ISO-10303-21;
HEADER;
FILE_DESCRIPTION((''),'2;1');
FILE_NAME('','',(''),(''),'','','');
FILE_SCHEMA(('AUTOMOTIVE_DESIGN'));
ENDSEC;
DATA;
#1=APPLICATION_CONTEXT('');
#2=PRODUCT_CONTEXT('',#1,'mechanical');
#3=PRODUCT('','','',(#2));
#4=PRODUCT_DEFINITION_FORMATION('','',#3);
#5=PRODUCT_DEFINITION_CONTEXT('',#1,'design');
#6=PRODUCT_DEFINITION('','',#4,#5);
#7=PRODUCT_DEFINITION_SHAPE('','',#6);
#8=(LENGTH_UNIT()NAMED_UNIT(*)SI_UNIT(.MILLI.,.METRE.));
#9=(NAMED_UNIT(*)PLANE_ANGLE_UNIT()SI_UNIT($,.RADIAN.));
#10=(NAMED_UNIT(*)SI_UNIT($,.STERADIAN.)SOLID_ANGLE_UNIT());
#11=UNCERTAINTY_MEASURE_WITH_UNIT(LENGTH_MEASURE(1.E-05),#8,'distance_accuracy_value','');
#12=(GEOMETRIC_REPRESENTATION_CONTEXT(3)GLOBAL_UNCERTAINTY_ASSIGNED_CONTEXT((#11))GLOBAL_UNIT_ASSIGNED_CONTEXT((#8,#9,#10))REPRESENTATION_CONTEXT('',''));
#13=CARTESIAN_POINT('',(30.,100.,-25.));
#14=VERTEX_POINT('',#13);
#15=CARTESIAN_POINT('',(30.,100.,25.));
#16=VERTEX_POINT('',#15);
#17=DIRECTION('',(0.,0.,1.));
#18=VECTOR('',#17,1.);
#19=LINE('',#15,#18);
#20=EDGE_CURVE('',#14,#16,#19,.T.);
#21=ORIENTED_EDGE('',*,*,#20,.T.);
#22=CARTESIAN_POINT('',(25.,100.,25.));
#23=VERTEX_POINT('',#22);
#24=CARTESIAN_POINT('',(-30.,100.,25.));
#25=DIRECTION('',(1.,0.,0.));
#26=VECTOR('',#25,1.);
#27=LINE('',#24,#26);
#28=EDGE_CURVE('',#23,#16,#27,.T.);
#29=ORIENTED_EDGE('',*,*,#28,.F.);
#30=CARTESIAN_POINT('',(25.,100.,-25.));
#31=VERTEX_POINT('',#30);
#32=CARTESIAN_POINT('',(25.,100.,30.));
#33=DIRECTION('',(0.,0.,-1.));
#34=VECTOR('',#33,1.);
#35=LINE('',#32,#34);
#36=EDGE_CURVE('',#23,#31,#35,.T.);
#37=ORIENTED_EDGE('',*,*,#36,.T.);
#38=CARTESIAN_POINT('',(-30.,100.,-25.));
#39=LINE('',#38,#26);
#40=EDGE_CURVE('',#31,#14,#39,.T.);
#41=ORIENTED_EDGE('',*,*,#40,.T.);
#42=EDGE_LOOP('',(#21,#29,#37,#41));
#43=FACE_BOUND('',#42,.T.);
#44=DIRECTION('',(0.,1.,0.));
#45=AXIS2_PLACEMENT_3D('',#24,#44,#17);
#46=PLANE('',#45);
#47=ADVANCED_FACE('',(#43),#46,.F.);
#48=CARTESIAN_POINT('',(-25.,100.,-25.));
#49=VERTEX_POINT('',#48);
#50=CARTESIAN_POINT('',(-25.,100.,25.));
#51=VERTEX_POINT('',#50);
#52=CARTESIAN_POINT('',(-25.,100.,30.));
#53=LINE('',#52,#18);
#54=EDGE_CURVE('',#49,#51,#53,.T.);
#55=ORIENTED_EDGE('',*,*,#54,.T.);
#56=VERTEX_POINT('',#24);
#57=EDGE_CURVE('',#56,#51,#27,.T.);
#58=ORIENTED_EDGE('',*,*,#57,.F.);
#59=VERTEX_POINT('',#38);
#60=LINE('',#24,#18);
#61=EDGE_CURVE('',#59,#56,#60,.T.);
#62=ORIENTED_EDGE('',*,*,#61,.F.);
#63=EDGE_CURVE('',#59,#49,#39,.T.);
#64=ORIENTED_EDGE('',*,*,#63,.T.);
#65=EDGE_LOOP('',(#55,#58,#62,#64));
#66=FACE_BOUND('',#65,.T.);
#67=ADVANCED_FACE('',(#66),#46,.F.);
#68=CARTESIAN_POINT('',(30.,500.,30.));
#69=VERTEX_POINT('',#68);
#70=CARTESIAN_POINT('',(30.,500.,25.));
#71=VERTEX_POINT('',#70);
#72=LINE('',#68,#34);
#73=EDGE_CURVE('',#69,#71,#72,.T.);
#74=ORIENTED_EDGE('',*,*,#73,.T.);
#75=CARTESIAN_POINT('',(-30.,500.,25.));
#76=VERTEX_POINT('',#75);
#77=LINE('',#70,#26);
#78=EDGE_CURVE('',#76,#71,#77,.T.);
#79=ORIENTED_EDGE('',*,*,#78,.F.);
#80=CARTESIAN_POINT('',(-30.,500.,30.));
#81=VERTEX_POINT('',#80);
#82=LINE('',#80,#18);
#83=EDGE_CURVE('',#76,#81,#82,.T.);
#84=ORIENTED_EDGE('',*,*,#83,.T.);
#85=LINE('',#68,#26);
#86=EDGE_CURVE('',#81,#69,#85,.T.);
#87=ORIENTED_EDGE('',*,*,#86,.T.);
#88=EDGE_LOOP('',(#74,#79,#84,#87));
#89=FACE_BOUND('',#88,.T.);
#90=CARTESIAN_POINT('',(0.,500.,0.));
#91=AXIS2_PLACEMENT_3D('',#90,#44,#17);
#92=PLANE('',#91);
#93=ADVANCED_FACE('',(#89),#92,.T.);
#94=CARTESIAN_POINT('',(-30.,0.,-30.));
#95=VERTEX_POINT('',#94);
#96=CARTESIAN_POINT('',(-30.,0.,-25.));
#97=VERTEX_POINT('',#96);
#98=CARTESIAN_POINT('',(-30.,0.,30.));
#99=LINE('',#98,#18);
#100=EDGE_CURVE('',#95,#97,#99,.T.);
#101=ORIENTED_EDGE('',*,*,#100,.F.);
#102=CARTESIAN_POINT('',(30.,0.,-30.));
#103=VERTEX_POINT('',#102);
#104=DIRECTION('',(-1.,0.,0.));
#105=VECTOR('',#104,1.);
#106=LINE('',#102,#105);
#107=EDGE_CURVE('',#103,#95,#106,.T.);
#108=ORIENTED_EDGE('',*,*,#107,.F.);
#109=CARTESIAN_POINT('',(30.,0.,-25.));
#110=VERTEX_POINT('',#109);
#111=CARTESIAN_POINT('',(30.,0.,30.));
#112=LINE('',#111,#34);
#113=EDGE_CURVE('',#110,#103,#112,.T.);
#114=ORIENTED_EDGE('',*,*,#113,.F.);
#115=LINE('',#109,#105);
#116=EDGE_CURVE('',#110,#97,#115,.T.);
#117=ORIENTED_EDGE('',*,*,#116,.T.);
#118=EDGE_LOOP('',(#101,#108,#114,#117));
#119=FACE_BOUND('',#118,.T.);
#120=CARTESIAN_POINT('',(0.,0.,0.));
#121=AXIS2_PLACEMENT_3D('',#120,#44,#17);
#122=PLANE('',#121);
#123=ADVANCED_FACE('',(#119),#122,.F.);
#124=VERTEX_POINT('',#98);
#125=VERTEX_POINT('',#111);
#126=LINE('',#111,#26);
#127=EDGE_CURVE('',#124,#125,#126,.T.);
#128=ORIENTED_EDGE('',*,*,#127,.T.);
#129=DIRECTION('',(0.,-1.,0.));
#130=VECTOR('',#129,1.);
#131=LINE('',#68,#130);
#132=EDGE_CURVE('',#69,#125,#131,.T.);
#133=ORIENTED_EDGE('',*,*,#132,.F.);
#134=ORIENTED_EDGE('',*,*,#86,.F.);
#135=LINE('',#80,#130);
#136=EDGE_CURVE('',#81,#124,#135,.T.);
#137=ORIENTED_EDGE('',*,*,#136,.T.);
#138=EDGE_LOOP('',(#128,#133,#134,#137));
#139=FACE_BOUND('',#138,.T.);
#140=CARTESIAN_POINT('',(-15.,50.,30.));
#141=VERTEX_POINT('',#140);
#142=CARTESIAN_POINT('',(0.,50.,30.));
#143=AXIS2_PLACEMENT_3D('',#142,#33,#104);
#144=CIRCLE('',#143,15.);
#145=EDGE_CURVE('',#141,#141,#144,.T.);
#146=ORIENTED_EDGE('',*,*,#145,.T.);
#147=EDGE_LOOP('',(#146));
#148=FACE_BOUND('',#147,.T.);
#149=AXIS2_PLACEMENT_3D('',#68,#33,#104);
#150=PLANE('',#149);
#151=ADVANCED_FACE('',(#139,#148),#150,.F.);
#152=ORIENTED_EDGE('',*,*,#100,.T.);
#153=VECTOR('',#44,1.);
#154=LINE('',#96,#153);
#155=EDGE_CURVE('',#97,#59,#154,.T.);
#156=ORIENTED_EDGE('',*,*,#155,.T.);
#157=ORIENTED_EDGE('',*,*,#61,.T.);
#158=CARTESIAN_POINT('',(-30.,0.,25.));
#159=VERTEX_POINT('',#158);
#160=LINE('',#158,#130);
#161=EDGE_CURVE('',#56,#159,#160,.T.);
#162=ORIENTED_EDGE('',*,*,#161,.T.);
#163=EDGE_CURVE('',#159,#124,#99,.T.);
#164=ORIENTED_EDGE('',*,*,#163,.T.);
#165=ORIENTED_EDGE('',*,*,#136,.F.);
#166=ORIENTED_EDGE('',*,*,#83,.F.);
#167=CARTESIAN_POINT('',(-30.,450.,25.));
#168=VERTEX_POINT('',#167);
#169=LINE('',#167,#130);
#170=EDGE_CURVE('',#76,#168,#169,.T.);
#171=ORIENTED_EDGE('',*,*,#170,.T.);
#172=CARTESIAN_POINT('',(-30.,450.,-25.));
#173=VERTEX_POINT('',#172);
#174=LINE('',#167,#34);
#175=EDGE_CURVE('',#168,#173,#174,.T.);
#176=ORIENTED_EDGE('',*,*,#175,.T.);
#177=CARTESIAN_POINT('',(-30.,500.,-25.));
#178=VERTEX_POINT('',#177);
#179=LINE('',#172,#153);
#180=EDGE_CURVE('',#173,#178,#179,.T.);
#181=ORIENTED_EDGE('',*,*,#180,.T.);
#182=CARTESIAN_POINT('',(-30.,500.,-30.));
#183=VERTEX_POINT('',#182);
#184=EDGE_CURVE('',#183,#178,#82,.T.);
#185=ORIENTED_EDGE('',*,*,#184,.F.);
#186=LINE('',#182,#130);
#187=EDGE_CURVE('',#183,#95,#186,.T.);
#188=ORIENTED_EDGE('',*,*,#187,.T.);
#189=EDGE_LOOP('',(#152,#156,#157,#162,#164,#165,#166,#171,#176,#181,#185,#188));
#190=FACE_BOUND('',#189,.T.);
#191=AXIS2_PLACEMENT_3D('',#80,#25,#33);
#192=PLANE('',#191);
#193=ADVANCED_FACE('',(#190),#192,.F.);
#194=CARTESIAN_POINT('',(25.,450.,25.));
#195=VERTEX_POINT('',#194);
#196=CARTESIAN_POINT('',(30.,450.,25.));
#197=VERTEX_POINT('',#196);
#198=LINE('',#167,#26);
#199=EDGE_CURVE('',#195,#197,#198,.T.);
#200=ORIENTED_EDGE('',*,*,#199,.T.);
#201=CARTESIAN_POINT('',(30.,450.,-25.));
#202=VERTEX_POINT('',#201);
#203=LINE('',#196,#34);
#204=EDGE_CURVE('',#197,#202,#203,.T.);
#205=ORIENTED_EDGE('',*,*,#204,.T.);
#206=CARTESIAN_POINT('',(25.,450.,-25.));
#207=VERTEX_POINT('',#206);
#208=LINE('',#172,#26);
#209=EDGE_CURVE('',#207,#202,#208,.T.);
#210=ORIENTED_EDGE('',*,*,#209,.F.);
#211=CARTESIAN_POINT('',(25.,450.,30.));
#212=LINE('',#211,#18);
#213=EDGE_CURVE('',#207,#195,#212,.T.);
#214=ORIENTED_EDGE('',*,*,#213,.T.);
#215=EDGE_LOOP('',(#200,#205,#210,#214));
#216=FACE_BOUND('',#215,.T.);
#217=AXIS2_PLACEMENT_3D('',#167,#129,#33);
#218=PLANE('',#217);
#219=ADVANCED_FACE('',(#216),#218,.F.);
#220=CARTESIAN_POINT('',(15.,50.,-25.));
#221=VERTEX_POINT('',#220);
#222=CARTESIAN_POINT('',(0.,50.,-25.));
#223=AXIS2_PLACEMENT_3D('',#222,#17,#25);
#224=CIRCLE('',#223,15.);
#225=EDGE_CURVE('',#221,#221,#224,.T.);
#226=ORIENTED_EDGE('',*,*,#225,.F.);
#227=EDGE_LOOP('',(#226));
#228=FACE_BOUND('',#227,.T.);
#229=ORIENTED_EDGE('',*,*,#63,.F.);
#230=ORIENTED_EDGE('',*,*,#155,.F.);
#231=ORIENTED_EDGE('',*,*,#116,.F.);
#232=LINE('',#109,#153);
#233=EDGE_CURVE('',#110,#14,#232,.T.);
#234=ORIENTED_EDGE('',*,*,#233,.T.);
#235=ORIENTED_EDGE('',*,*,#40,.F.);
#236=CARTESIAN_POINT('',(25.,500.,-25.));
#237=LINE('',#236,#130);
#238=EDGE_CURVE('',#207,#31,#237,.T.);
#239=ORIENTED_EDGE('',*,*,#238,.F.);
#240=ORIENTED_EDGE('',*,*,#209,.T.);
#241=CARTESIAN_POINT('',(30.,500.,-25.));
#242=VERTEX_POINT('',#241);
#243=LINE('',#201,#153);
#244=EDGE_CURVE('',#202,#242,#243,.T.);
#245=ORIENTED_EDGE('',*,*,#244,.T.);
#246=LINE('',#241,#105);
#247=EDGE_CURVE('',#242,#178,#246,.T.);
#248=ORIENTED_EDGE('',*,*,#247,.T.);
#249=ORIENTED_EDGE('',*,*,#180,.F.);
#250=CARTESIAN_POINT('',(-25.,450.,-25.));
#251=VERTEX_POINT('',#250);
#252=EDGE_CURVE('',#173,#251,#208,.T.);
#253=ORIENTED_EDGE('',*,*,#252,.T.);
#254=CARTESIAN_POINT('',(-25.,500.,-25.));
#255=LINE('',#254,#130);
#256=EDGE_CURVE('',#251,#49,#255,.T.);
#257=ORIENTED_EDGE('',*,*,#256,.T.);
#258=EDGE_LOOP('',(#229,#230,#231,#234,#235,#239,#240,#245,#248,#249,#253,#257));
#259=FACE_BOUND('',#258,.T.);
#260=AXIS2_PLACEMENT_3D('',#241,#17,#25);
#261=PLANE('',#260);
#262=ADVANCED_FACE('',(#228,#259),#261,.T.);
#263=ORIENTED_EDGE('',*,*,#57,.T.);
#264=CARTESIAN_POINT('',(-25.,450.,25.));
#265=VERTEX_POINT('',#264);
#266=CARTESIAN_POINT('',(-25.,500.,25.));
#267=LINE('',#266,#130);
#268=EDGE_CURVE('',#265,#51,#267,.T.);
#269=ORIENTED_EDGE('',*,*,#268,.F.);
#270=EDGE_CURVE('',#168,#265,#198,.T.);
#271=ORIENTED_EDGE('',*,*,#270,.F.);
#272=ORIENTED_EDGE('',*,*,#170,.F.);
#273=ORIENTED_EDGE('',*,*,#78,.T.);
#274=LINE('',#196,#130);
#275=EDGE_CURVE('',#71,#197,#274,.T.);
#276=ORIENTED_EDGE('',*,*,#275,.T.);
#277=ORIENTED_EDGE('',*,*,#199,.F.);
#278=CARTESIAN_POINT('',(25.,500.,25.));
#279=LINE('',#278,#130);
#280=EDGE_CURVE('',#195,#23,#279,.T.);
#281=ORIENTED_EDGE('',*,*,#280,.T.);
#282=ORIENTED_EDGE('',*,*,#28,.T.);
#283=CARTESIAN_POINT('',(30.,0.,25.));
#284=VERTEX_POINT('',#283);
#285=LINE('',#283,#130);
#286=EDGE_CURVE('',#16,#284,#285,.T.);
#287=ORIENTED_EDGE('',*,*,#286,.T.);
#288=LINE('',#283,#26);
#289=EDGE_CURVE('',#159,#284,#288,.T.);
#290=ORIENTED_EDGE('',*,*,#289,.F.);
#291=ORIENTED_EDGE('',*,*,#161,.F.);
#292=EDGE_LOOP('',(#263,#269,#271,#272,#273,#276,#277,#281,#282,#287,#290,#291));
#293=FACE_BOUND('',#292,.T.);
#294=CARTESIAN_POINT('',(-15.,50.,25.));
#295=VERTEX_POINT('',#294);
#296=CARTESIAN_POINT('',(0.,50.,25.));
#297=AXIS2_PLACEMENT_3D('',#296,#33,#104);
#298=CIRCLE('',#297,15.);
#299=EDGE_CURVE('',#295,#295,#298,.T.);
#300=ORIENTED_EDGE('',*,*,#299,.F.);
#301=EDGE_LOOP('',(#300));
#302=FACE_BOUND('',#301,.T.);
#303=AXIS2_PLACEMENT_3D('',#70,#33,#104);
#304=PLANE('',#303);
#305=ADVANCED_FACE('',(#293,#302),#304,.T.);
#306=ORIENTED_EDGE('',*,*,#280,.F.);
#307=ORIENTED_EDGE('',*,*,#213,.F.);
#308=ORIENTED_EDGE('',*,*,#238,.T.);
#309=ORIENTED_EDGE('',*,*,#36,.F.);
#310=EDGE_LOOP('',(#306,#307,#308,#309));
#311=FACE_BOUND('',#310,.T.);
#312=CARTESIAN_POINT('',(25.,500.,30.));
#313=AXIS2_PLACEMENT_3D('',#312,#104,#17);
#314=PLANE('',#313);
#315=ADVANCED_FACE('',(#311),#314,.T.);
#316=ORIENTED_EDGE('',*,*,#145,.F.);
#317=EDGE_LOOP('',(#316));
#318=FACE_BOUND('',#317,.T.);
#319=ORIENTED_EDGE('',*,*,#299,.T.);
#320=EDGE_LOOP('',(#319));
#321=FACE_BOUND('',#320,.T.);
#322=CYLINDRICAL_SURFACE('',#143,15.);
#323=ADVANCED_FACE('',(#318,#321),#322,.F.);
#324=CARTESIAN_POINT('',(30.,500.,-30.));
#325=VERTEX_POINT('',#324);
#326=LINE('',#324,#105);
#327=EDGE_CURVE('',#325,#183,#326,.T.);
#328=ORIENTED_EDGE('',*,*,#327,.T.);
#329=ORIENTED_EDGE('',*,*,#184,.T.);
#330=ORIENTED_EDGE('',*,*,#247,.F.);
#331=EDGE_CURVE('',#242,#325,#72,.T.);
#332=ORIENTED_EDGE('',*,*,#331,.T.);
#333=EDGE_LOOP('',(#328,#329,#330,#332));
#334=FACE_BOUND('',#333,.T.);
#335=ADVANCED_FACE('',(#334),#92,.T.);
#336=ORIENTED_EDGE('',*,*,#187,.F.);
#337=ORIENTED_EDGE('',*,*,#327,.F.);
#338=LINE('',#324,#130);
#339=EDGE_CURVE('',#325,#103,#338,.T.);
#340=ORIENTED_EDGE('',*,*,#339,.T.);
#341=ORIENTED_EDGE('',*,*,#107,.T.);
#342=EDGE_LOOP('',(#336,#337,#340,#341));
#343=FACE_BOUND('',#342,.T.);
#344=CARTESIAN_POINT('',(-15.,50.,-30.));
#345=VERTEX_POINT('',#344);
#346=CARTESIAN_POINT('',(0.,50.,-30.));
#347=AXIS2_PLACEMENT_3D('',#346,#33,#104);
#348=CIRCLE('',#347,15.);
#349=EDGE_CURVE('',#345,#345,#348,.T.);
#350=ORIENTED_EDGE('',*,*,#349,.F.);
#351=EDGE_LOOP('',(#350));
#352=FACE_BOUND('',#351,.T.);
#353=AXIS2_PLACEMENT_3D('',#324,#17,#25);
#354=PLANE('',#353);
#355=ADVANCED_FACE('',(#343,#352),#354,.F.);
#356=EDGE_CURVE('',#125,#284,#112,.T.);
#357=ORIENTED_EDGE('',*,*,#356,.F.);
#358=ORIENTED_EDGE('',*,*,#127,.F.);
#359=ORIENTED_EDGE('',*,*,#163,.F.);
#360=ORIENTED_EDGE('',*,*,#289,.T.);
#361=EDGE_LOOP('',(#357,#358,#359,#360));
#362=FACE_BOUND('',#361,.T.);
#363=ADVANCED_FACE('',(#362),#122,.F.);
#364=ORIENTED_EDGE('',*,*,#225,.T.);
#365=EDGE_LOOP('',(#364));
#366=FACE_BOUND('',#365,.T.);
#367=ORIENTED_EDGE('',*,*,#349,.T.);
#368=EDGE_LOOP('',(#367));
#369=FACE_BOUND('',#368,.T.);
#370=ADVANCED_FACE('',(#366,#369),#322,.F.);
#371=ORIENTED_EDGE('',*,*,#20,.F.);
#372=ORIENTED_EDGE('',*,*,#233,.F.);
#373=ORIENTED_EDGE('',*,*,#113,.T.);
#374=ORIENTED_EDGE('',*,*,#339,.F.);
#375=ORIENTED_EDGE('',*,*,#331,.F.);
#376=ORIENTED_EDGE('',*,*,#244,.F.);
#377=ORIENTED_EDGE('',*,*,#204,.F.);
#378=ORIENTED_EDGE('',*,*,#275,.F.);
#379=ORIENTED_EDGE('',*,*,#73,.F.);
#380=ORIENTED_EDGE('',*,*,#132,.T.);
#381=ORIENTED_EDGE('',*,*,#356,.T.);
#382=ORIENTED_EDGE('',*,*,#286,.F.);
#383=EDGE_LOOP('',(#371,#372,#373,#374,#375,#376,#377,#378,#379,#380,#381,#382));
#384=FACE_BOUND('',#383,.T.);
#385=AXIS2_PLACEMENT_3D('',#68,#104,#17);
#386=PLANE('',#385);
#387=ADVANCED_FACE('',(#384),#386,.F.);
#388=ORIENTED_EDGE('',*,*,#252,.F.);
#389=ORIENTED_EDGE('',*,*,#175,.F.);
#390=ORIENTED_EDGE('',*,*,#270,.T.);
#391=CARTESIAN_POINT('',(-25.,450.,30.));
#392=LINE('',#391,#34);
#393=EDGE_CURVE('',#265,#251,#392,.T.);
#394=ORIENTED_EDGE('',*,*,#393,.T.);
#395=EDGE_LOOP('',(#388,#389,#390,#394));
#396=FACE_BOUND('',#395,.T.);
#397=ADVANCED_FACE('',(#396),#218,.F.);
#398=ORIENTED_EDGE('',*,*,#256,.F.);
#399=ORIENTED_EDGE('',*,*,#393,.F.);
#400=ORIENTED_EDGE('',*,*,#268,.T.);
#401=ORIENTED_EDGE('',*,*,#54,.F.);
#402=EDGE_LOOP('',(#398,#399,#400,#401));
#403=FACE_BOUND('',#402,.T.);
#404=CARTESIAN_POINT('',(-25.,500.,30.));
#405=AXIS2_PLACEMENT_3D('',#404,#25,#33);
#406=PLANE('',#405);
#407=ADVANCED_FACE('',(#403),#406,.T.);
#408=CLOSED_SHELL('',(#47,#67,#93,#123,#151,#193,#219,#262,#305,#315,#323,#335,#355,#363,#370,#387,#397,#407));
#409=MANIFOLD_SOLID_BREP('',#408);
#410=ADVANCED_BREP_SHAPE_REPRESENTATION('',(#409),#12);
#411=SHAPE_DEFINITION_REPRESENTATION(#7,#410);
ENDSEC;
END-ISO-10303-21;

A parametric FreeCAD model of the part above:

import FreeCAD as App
import Part
import Sketcher


def faces_at(feature, points):
    """Names of the faces that lie closest to the given points."""
    faces = feature.Shape.Faces
    near = lambda p: min(range(len(faces)), key=lambda i: faces[i].distToShape(Part.Vertex(*p))[0])
    return sorted({f"Face{near(p) + 1}" for p in points})

doc = App.newDocument("Part")
body = doc.addObject("PartDesign::Body", "Body")

sketch1 = body.newObject("Sketcher::SketchObject", "Sketch")
sketch1.AttachmentSupport = (doc.getObject("XZ_Plane"), [""])
sketch1.MapMode = "FlatFace"
sketch1.addGeometry([
    Part.LineSegment(App.Vector(30, 30, 0), App.Vector(30, -30, 0)),
    Part.LineSegment(App.Vector(30, -30, 0), App.Vector(-30, -30, 0)),
    Part.LineSegment(App.Vector(-30, -30, 0), App.Vector(-30, 30, 0)),
    Part.LineSegment(App.Vector(-30, 30, 0), App.Vector(30, 30, 0)),
], False)
sketch1.addConstraint([
    Sketcher.Constraint("Coincident", 0, 2, 1, 1),
    Sketcher.Constraint("Coincident", 1, 2, 2, 1),
    Sketcher.Constraint("Coincident", 2, 2, 3, 1),
    Sketcher.Constraint("Coincident", 3, 2, 0, 1),
    Sketcher.Constraint("Vertical", 0),
    Sketcher.Constraint("Horizontal", 1),
    Sketcher.Constraint("Vertical", 2),
    Sketcher.Constraint("Horizontal", 3),
    Sketcher.Constraint("Symmetric", 0, 2, 2, 2, -1, 1),
    Sketcher.Constraint("Equal", 3, 0),
    Sketcher.Constraint("DistanceX", 1, 2, 1, 1, 60.0),
])
pad1 = body.newObject("PartDesign::Pad", "Pad")
pad1.Profile = sketch1
pad1.Length = 500
pad1.Reversed = True
doc.recompute()

thickness = body.newObject("PartDesign::Thickness", "Thickness")
thickness.Base = (pad1, faces_at(pad1, [(0, 500, 0), (0, 0, 0)]))
thickness.Value = 5
thickness.Reversed = True
thickness.Join = "Intersection"

sketch2 = body.newObject("Sketcher::SketchObject", "Sketch001")
sketch2.AttachmentSupport = (doc.getObject("YZ_Plane"), [""])
sketch2.MapMode = "FlatFace"
sketch2.AttachmentOffset = App.Placement(App.Vector(0, 0, 30), App.Rotation())
sketch2.addGeometry([
    Part.LineSegment(App.Vector(0, 25, 0), App.Vector(0, -25, 0)),
    Part.LineSegment(App.Vector(0, -25, 0), App.Vector(100, -25, 0)),
    Part.LineSegment(App.Vector(100, -25, 0), App.Vector(100, 25, 0)),
    Part.LineSegment(App.Vector(100, 25, 0), App.Vector(0, 25, 0)),
    Part.LineSegment(App.Vector(450, 25, 0), App.Vector(450, -25, 0)),
    Part.LineSegment(App.Vector(450, -25, 0), App.Vector(500, -25, 0)),
    Part.LineSegment(App.Vector(500, -25, 0), App.Vector(500, 25, 0)),
    Part.LineSegment(App.Vector(500, 25, 0), App.Vector(450, 25, 0)),
], False)
sketch2.addConstraint([
    Sketcher.Constraint("Coincident", 0, 2, 1, 1),
    Sketcher.Constraint("Coincident", 1, 2, 2, 1),
    Sketcher.Constraint("Coincident", 2, 2, 3, 1),
    Sketcher.Constraint("Coincident", 3, 2, 0, 1),
    Sketcher.Constraint("Coincident", 4, 2, 5, 1),
    Sketcher.Constraint("Coincident", 5, 2, 6, 1),
    Sketcher.Constraint("Coincident", 6, 2, 7, 1),
    Sketcher.Constraint("Coincident", 7, 2, 4, 1),
    Sketcher.Constraint("Vertical", 0),
    Sketcher.Constraint("Horizontal", 1),
    Sketcher.Constraint("Vertical", 2),
    Sketcher.Constraint("Horizontal", 3),
    Sketcher.Constraint("Vertical", 4),
    Sketcher.Constraint("Horizontal", 5),
    Sketcher.Constraint("Vertical", 6),
    Sketcher.Constraint("Horizontal", 7),
    Sketcher.Constraint("Symmetric", 0, 2, 3, 2, -1, 1),
    Sketcher.Constraint("Horizontal", 1, 2, 4, 2),
    Sketcher.Constraint("Horizontal", 3, 2, 6, 2),
    Sketcher.Constraint("Equal", 7, 0),
    Sketcher.Constraint("DistanceX", 1, 1, 1, 2, 100.0),
    Sketcher.Constraint("DistanceX", 5, 1, 5, 2, 50.0),
    Sketcher.Constraint("DistanceX", -1, 1, 4, 2, 450.0),
])
pocket1 = body.newObject("PartDesign::Pocket", "Pocket")
pocket1.Profile = sketch2
pocket1.Type = "ThroughAll"

sketch3 = body.newObject("Sketcher::SketchObject", "Sketch002")
sketch3.AttachmentSupport = (doc.getObject("XY_Plane"), [""])
sketch3.MapMode = "FlatFace"
sketch3.AttachmentOffset = App.Placement(App.Vector(0, 0, 25), App.Rotation())
sketch3.addGeometry(Part.Circle(App.Vector(0, 50, 0), App.Vector(0, 0, 1), 15), False)
sketch3.addConstraint([
    Sketcher.Constraint("PointOnObject", 0, 3, -2),
    Sketcher.Constraint("Diameter", 0, 30.0),
    Sketcher.Constraint("DistanceY", -1, 1, 0, 3, 50.0),
])
pocket2 = body.newObject("PartDesign::Pocket", "Pocket001")
pocket2.Profile = sketch3
pocket2.Type = "ThroughAll"
pocket2.Midplane = True

doc.recompute()
